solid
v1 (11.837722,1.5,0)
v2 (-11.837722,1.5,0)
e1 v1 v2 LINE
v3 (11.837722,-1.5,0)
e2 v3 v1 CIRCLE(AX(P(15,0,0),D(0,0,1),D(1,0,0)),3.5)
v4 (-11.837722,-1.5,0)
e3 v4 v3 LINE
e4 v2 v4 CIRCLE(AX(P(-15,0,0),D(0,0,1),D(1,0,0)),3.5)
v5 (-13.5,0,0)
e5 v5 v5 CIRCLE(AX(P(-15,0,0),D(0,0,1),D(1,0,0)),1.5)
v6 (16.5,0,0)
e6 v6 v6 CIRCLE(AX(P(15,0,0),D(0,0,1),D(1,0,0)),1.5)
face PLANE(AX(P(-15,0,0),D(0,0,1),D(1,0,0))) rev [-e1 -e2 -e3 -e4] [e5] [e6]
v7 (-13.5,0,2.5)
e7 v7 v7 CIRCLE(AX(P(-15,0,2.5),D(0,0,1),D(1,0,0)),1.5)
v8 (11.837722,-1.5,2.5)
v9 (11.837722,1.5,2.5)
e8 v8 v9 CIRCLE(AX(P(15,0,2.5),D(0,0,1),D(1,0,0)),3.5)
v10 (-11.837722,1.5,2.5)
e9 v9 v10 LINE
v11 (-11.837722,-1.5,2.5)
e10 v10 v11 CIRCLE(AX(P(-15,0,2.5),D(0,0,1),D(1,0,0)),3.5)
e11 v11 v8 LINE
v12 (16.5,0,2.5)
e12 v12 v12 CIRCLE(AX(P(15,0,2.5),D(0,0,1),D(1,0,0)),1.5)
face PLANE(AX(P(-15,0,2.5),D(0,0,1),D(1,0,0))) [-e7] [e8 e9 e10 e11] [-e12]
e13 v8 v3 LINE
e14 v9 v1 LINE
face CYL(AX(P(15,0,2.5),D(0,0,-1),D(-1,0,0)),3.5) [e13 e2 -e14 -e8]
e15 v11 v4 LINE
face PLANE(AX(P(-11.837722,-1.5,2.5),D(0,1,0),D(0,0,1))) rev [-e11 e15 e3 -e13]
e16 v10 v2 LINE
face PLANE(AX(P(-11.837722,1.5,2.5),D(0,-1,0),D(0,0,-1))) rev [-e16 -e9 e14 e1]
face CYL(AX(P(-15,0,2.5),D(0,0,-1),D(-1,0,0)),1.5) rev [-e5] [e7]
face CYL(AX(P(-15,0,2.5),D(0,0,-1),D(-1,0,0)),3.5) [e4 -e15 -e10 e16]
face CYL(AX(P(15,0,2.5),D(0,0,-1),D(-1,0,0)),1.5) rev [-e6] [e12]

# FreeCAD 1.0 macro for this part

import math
import FreeCAD as App
import Part
import Sketcher
from FreeCAD import Vector
Q = App.Units.Quantity

doc = App.newDocument("Part")
body = doc.addObject("PartDesign::Body", "Body")

# Sketch on XY plane
sketch1 = body.newObject("Sketcher::SketchObject", "Sketch")
sketch1.AttachmentSupport = (doc.getObject("XY_Plane"), [""])
sketch1.MapMode = "FlatFace"
sketch1.addGeometry([
    Part.LineSegment(Vector(11.8, 1.5, 0), Vector(-11.8, 1.5, 0)),  # 0
    Part.ArcOfCircle(Part.Circle(Vector(-15, 0, 0), Vector(0, 0, 1), 3.5), math.radians(25), math.radians(335)),  # 1
    Part.LineSegment(Vector(-11.8, -1.5, 0), Vector(11.8, -1.5, 0)),  # 2
    Part.ArcOfCircle(Part.Circle(Vector(15, 0, 0), Vector(0, 0, 1), 3.5), math.radians(-155), math.radians(155)),  # 3
    Part.Circle(Vector(15, 0, 0), Vector(0, 0, 1), 1.5),  # 4
    Part.Circle(Vector(-15, 0, 0), Vector(0, 0, 1), 1.5),  # 5
], False)
sketch1.addConstraint([
    Sketcher.Constraint("Coincident", 0, 2, 1, 1),
    Sketcher.Constraint("Coincident", 1, 2, 2, 1),
    Sketcher.Constraint("Coincident", 2, 2, 3, 1),
    Sketcher.Constraint("Coincident", 3, 2, 0, 1),
    Sketcher.Constraint("Horizontal", 0),
    Sketcher.Constraint("Horizontal", 2),
    Sketcher.Constraint("Coincident", 4, 3, 3, 3),
    Sketcher.Constraint("Coincident", 5, 3, 1, 3),
    Sketcher.Constraint("Equal", 1, 3),
    Sketcher.Constraint("Equal", 4, 5),
    Sketcher.Constraint("Symmetric", 1, 3, 3, 3, -1, 1),
    Sketcher.Constraint("Symmetric", 0, 2, 1, 2, -1),
    Sketcher.Constraint("Diameter", 4, Q("3 mm")),
    Sketcher.Constraint("Radius", 1, Q("3.5 mm")),
    Sketcher.Constraint("DistanceX", 1, 3, -1, 1, Q("15 mm")),
    Sketcher.Constraint("DistanceY", 1, 2, 0, 2, Q("3 mm")),
])
pad1 = body.newObject("PartDesign::Pad", "Pad")
pad1.Profile = sketch1
pad1.Length = 2.5

doc.recompute()
